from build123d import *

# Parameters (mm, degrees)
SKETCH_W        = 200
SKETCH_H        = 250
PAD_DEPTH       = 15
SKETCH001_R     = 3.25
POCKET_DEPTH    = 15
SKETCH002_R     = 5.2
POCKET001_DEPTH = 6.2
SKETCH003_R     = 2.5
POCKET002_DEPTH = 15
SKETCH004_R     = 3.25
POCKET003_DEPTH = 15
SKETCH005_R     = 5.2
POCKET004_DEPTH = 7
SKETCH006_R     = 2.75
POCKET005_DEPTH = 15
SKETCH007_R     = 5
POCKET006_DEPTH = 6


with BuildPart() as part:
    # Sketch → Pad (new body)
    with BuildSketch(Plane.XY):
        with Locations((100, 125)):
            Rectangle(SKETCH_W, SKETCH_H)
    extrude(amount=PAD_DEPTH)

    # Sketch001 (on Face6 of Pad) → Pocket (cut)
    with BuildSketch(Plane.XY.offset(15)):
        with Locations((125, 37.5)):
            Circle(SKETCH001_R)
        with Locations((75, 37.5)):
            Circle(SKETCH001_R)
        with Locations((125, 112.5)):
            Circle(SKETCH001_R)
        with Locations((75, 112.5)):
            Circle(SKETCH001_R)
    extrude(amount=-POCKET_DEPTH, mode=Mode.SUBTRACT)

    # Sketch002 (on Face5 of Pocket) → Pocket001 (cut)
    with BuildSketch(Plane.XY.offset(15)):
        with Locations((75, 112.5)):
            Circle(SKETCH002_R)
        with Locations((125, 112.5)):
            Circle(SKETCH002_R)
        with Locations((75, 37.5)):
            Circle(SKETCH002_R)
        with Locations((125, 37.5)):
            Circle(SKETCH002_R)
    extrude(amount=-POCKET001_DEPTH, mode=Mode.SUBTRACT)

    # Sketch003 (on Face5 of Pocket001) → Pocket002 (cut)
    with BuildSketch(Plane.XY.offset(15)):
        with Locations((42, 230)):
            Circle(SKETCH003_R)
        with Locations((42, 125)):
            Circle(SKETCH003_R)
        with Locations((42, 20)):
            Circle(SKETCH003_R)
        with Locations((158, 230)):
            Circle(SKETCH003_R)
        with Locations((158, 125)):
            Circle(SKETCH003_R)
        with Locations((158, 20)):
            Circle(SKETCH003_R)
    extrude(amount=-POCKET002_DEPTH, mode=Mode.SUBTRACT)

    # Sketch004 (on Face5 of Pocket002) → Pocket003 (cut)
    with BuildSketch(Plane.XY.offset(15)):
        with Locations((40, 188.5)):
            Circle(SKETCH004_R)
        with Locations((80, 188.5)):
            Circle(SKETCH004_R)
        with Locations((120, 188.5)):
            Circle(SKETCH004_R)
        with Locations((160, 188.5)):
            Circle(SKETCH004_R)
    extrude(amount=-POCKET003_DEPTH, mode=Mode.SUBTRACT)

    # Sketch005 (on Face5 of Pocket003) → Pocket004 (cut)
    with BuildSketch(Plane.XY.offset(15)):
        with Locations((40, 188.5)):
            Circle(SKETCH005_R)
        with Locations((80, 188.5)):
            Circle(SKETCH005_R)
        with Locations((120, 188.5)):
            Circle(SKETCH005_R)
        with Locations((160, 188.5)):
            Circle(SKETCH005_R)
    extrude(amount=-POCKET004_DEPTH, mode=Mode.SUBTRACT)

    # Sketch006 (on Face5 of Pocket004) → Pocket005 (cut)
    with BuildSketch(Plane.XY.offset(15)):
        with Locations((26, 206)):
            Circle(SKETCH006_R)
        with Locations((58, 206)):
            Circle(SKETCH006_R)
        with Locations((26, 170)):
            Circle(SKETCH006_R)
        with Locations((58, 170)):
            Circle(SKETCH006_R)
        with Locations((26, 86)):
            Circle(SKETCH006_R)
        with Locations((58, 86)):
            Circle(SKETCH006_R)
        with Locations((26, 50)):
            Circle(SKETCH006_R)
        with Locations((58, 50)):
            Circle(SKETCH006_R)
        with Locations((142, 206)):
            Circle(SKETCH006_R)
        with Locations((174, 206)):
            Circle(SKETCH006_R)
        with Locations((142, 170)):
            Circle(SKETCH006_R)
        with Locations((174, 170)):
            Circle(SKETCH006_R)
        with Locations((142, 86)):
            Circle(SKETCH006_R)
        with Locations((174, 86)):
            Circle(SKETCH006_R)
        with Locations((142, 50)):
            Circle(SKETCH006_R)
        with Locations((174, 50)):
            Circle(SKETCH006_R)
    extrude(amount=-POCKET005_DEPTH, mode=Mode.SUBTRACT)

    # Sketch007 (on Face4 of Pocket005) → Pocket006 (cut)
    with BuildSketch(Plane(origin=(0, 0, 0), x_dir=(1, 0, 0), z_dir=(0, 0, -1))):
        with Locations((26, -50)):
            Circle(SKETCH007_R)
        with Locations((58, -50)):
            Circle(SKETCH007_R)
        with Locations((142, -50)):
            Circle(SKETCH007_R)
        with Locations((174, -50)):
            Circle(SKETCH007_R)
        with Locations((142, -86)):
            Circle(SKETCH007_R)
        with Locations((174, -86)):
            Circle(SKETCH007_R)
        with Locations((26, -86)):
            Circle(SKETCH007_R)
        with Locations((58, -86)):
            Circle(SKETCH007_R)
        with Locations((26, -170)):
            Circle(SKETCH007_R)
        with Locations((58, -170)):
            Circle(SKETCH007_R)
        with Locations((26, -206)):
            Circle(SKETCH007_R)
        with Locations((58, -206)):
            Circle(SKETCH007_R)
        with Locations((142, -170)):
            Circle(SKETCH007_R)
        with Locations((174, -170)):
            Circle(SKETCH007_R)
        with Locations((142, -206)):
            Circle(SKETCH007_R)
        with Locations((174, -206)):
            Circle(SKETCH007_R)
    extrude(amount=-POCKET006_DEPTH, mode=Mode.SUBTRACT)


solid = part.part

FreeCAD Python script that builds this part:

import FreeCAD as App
import Part
import Sketcher

V = App.Vector


def add_polygon(sketch, points):
    """Adds a closed chain of lines whose ends are joined by coincident constraints."""
    first, n = sketch.GeometryCount, len(points)
    for a, b in zip(points, points[1:] + points[:1]):
        sketch.addGeometry(Part.LineSegment(App.Vector(*a, 0), App.Vector(*b, 0)), False)
    for i in range(n):
        sketch.addConstraint(Sketcher.Constraint("Coincident", first + i, 2, first + (i + 1) % n, 1))

doc = App.newDocument("Part")
body = doc.addObject("PartDesign::Body", "Body")

# Sketch on XY plane
sketch1 = body.newObject("Sketcher::SketchObject", "Sketch")
sketch1.AttachmentSupport = (doc.getObject("XY_Plane"), [""])
sketch1.MapMode = "FlatFace"
add_polygon(sketch1, [(0, 250), (0, 0), (200, 0), (200, 250)])  # lines 0-3
sketch1.addConstraint(Sketcher.Constraint("Vertical", 0))
sketch1.addConstraint(Sketcher.Constraint("Horizontal", 1))
sketch1.addConstraint(Sketcher.Constraint("Vertical", 2))
sketch1.addConstraint(Sketcher.Constraint("Horizontal", 3))
sketch1.addConstraint(Sketcher.Constraint("Coincident", 0, 2, -1, 1))
sketch1.addConstraint(Sketcher.Constraint("DistanceX", 1, 1, 1, 2, 200.0))
sketch1.addConstraint(Sketcher.Constraint("DistanceY", 0, 2, 0, 1, 250.0))
pad1 = body.newObject("PartDesign::Pad", "Pad")
pad1.Profile = sketch1
pad1.Length = 15

# Sketch on XY plane
sketch2 = body.newObject("Sketcher::SketchObject", "Sketch001")
sketch2.AttachmentSupport = (doc.getObject("XY_Plane"), [""])
sketch2.MapMode = "FlatFace"
sketch2.AttachmentOffset = App.Placement(V(0, 0, 15), App.Rotation())
sketch2.addGeometry(Part.Circle(V(125, 37.5, 0), V(0, 0, 1), 3.25), False)
sketch2.addGeometry(Part.Circle(V(75, 37.5, 0), V(0, 0, 1), 3.25), False)
sketch2.addGeometry(Part.Circle(V(125, 112.5, 0), V(0, 0, 1), 3.25), False)
sketch2.addGeometry(Part.Circle(V(75, 112.5, 0), V(0, 0, 1), 3.25), False)
sketch2.addConstraint(Sketcher.Constraint("Equal", 0, 1))
sketch2.addConstraint(Sketcher.Constraint("Equal", 1, 2))
sketch2.addConstraint(Sketcher.Constraint("Equal", 2, 3))
sketch2.addConstraint(Sketcher.Constraint("Horizontal", 0, 3, 1, 3))
sketch2.addConstraint(Sketcher.Constraint("Horizontal", 2, 3, 3, 3))
sketch2.addConstraint(Sketcher.Constraint("Vertical", 0, 3, 2, 3))
sketch2.addConstraint(Sketcher.Constraint("Vertical", 1, 3, 3, 3))
sketch2.addConstraint(Sketcher.Constraint("Diameter", 0, 6.5))
sketch2.addConstraint(Sketcher.Constraint("DistanceX", -1, 1, 0, 3, 125.0))
sketch2.addConstraint(Sketcher.Constraint("DistanceX", -1, 1, 1, 3, 75.0))
sketch2.addConstraint(Sketcher.Constraint("DistanceY", 0, 3, 2, 3, 75.0))
sketch2.addConstraint(Sketcher.Constraint("DistanceY", -1, 1, 0, 3, 37.5))
pocket1 = body.newObject("PartDesign::Pocket", "Pocket")
pocket1.Profile = sketch2
pocket1.Length = 15

# Sketch on XY plane
sketch3 = body.newObject("Sketcher::SketchObject", "Sketch002")
sketch3.AttachmentSupport = (doc.getObject("XY_Plane"), [""])
sketch3.MapMode = "FlatFace"
sketch3.AttachmentOffset = App.Placement(V(0, 0, 15), App.Rotation())
sketch3.addGeometry(Part.Circle(V(75, 112.5, 0), V(0, 0, 1), 5.2), False)
sketch3.addGeometry(Part.Circle(V(125, 112.5, 0), V(0, 0, 1), 5.2), False)
sketch3.addGeometry(Part.Circle(V(75, 37.5, 0), V(0, 0, 1), 5.2), False)
sketch3.addGeometry(Part.Circle(V(125, 37.5, 0), V(0, 0, 1), 5.2), False)
sketch3.addConstraint(Sketcher.Constraint("Equal", 0, 1))
sketch3.addConstraint(Sketcher.Constraint("Equal", 1, 2))
sketch3.addConstraint(Sketcher.Constraint("Equal", 2, 3))
sketch3.addConstraint(Sketcher.Constraint("Horizontal", 0, 3, 1, 3))
sketch3.addConstraint(Sketcher.Constraint("Horizontal", 2, 3, 3, 3))
sketch3.addConstraint(Sketcher.Constraint("Vertical", 0, 3, 2, 3))
sketch3.addConstraint(Sketcher.Constraint("Vertical", 1, 3, 3, 3))
sketch3.addConstraint(Sketcher.Constraint("Diameter", 0, 10.4))
sketch3.addConstraint(Sketcher.Constraint("DistanceX", -1, 1, 0, 3, 75.0))
sketch3.addConstraint(Sketcher.Constraint("DistanceX", -1, 1, 1, 3, 125.0))
sketch3.addConstraint(Sketcher.Constraint("DistanceY", 2, 3, 0, 3, 75.0))
sketch3.addConstraint(Sketcher.Constraint("DistanceY", -1, 1, 0, 3, 112.5))
pocket2 = body.newObject("PartDesign::Pocket", "Pocket001")
pocket2.Profile = sketch3
pocket2.Length = 6.2

# Sketch on XY plane
sketch4 = body.newObject("Sketcher::SketchObject", "Sketch003")
sketch4.AttachmentSupport = (doc.getObject("XY_Plane"), [""])
sketch4.MapMode = "FlatFace"
sketch4.AttachmentOffset = App.Placement(V(0, 0, 15), App.Rotation())
sketch4.addGeometry(Part.Circle(V(42, 230, 0), V(0, 0, 1), 2.5), False)
sketch4.addGeometry(Part.Circle(V(42, 125, 0), V(0, 0, 1), 2.5), False)
sketch4.addGeometry(Part.Circle(V(42, 20, 0), V(0, 0, 1), 2.5), False)
sketch4.addGeometry(Part.Circle(V(158, 230, 0), V(0, 0, 1), 2.5), False)
sketch4.addGeometry(Part.Circle(V(158, 125, 0), V(0, 0, 1), 2.5), False)
sketch4.addGeometry(Part.Circle(V(158, 20, 0), V(0, 0, 1), 2.5), False)
sketch4.addConstraint(Sketcher.Constraint("Equal", 0, 1))
sketch4.addConstraint(Sketcher.Constraint("Equal", 1, 2))
sketch4.addConstraint(Sketcher.Constraint("Equal", 2, 3))
sketch4.addConstraint(Sketcher.Constraint("Equal", 3, 4))
sketch4.addConstraint(Sketcher.Constraint("Equal", 4, 5))
sketch4.addConstraint(Sketcher.Constraint("Horizontal", 0, 3, 3, 3))
sketch4.addConstraint(Sketcher.Constraint("Horizontal", 1, 3, 4, 3))
sketch4.addConstraint(Sketcher.Constraint("Horizontal", 2, 3, 5, 3))
sketch4.addConstraint(Sketcher.Constraint("Vertical", 0, 3, 1, 3))
sketch4.addConstraint(Sketcher.Constraint("Vertical", 1, 3, 2, 3))
sketch4.addConstraint(Sketcher.Constraint("Vertical", 3, 3, 4, 3))
sketch4.addConstraint(Sketcher.Constraint("Vertical", 4, 3, 5, 3))
sketch4.addConstraint(Sketcher.Constraint("Diameter", 0, 5.0))
sketch4.addConstraint(Sketcher.Constraint("DistanceX", -1, 1, 0, 3, 42.0))
sketch4.addConstraint(Sketcher.Constraint("DistanceY", -1, 1, 0, 3, 230.0))
sketch4.addConstraint(Sketcher.Constraint("DistanceY", -1, 1, 1, 3, 125.0))
sketch4.addConstraint(Sketcher.Constraint("DistanceY", -1, 1, 2, 3, 20.0))
sketch4.addConstraint(Sketcher.Constraint("DistanceX", -1, 1, 3, 3, 158.0))
pocket3 = body.newObject("PartDesign::Pocket", "Pocket002")
pocket3.Profile = sketch4
pocket3.Length = 15

# Sketch on XY plane
sketch5 = body.newObject("Sketcher::SketchObject", "Sketch004")
sketch5.AttachmentSupport = (doc.getObject("XY_Plane"), [""])
sketch5.MapMode = "FlatFace"
sketch5.AttachmentOffset = App.Placement(V(0, 0, 15), App.Rotation())
sketch5.addGeometry(Part.Circle(V(40, 188.5, 0), V(0, 0, 1), 3.25), False)
sketch5.addGeometry(Part.Circle(V(80, 188.5, 0), V(0, 0, 1), 3.25), False)
sketch5.addGeometry(Part.Circle(V(120, 188.5, 0), V(0, 0, 1), 3.25), False)
sketch5.addGeometry(Part.Circle(V(160, 188.5, 0), V(0, 0, 1), 3.25), False)
sketch5.addConstraint(Sketcher.Constraint("Equal", 0, 1))
sketch5.addConstraint(Sketcher.Constraint("Equal", 1, 2))
sketch5.addConstraint(Sketcher.Constraint("Equal", 2, 3))
sketch5.addConstraint(Sketcher.Constraint("Horizontal", 0, 3, 1, 3))
sketch5.addConstraint(Sketcher.Constraint("Horizontal", 1, 3, 2, 3))
sketch5.addConstraint(Sketcher.Constraint("Horizontal", 2, 3, 3, 3))
sketch5.addConstraint(Sketcher.Constraint("Diameter", 0, 6.5))
sketch5.addConstraint(Sketcher.Constraint("DistanceX", -1, 1, 0, 3, 40.0))
sketch5.addConstraint(Sketcher.Constraint("DistanceX", -1, 1, 1, 3, 80.0))
sketch5.addConstraint(Sketcher.Constraint("DistanceX", -1, 1, 2, 3, 120.0))
sketch5.addConstraint(Sketcher.Constraint("DistanceX", -1, 1, 3, 3, 160.0))
sketch5.addConstraint(Sketcher.Constraint("DistanceY", -1, 1, 0, 3, 188.5))
pocket4 = body.newObject("PartDesign::Pocket", "Pocket003")
pocket4.Profile = sketch5
pocket4.Length = 15

# Sketch on XY plane
sketch6 = body.newObject("Sketcher::SketchObject", "Sketch005")
sketch6.AttachmentSupport = (doc.getObject("XY_Plane"), [""])
sketch6.MapMode = "FlatFace"
sketch6.AttachmentOffset = App.Placement(V(0, 0, 15), App.Rotation())
sketch6.addGeometry(Part.Circle(V(40, 188.5, 0), V(0, 0, 1), 5.2), False)
sketch6.addGeometry(Part.Circle(V(80, 188.5, 0), V(0, 0, 1), 5.2), False)
sketch6.addGeometry(Part.Circle(V(120, 188.5, 0), V(0, 0, 1), 5.2), False)
sketch6.addGeometry(Part.Circle(V(160, 188.5, 0), V(0, 0, 1), 5.2), False)
sketch6.addConstraint(Sketcher.Constraint("Equal", 0, 1))
sketch6.addConstraint(Sketcher.Constraint("Equal", 1, 2))
sketch6.addConstraint(Sketcher.Constraint("Equal", 2, 3))
sketch6.addConstraint(Sketcher.Constraint("Horizontal", 0, 3, 1, 3))
sketch6.addConstraint(Sketcher.Constraint("Horizontal", 1, 3, 2, 3))
sketch6.addConstraint(Sketcher.Constraint("Horizontal", 2, 3, 3, 3))
sketch6.addConstraint(Sketcher.Constraint("Diameter", 0, 10.4))
sketch6.addConstraint(Sketcher.Constraint("DistanceX", -1, 1, 0, 3, 40.0))
sketch6.addConstraint(Sketcher.Constraint("DistanceX", -1, 1, 1, 3, 80.0))
sketch6.addConstraint(Sketcher.Constraint("DistanceX", -1, 1, 2, 3, 120.0))
sketch6.addConstraint(Sketcher.Constraint("DistanceX", -1, 1, 3, 3, 160.0))
sketch6.addConstraint(Sketcher.Constraint("DistanceY", -1, 1, 0, 3, 188.5))
pocket5 = body.newObject("PartDesign::Pocket", "Pocket004")
pocket5.Profile = sketch6
pocket5.Length = 7

# Sketch on XY plane
sketch7 = body.newObject("Sketcher::SketchObject", "Sketch006")
sketch7.AttachmentSupport = (doc.getObject("XY_Plane"), [""])
sketch7.MapMode = "FlatFace"
sketch7.AttachmentOffset = App.Placement(V(0, 0, 15), App.Rotation())
sketch7.addGeometry(Part.Circle(V(26, 206, 0), V(0, 0, 1), 2.75), False)
sketch7.addGeometry(Part.Circle(V(58, 206, 0), V(0, 0, 1), 2.75), False)
sketch7.addGeometry(Part.Circle(V(26, 170, 0), V(0, 0, 1), 2.75), False)
sketch7.addGeometry(Part.Circle(V(58, 170, 0), V(0, 0, 1), 2.75), False)
sketch7.addGeometry(Part.Circle(V(26, 86, 0), V(0, 0, 1), 2.75), False)
sketch7.addGeometry(Part.Circle(V(58, 86, 0), V(0, 0, 1), 2.75), False)
sketch7.addGeometry(Part.Circle(V(26, 50, 0), V(0, 0, 1), 2.75), False)
sketch7.addGeometry(Part.Circle(V(58, 50, 0), V(0, 0, 1), 2.75), False)
sketch7.addGeometry(Part.Circle(V(142, 206, 0), V(0, 0, 1), 2.75), False)
sketch7.addGeometry(Part.Circle(V(174, 206, 0), V(0, 0, 1), 2.75), False)
sketch7.addGeometry(Part.Circle(V(142, 170, 0), V(0, 0, 1), 2.75), False)
sketch7.addGeometry(Part.Circle(V(174, 170, 0), V(0, 0, 1), 2.75), False)
sketch7.addGeometry(Part.Circle(V(142, 86, 0), V(0, 0, 1), 2.75), False)
sketch7.addGeometry(Part.Circle(V(174, 86, 0), V(0, 0, 1), 2.75), False)
sketch7.addGeometry(Part.Circle(V(142, 50, 0), V(0, 0, 1), 2.75), False)
sketch7.addGeometry(Part.Circle(V(174, 50, 0), V(0, 0, 1), 2.75), False)
sketch7.addConstraint(Sketcher.Constraint("Equal", 0, 1))
sketch7.addConstraint(Sketcher.Constraint("Equal", 1, 2))
sketch7.addConstraint(Sketcher.Constraint("Equal", 2, 3))
sketch7.addConstraint(Sketcher.Constraint("Equal", 3, 4))
sketch7.addConstraint(Sketcher.Constraint("Equal", 4, 5))
sketch7.addConstraint(Sketcher.Constraint("Equal", 5, 6))
sketch7.addConstraint(Sketcher.Constraint("Equal", 6, 7))
sketch7.addConstraint(Sketcher.Constraint("Equal", 7, 8))
sketch7.addConstraint(Sketcher.Constraint("Equal", 8, 9))
sketch7.addConstraint(Sketcher.Constraint("Equal", 9, 10))
sketch7.addConstraint(Sketcher.Constraint("Equal", 10, 11))
sketch7.addConstraint(Sketcher.Constraint("Equal", 11, 12))
sketch7.addConstraint(Sketcher.Constraint("Equal", 12, 13))
sketch7.addConstraint(Sketcher.Constraint("Equal", 13, 14))
sketch7.addConstraint(Sketcher.Constraint("Equal", 14, 15))
sketch7.addConstraint(Sketcher.Constraint("Horizontal", 0, 3, 1, 3))
sketch7.addConstraint(Sketcher.Constraint("Horizontal", 2, 3, 3, 3))
sketch7.addConstraint(Sketcher.Constraint("Horizontal", 4, 3, 5, 3))
sketch7.addConstraint(Sketcher.Constraint("Horizontal", 6, 3, 7, 3))
sketch7.addConstraint(Sketcher.Constraint("Horizontal", 1, 3, 8, 3))
sketch7.addConstraint(Sketcher.Constraint("Horizontal", 8, 3, 9, 3))
sketch7.addConstraint(Sketcher.Constraint("Horizontal", 3, 3, 10, 3))
sketch7.addConstraint(Sketcher.Constraint("Horizontal", 10, 3, 11, 3))
sketch7.addConstraint(Sketcher.Constraint("Horizontal", 5, 3, 12, 3))
sketch7.addConstraint(Sketcher.Constraint("Horizontal", 12, 3, 13, 3))
sketch7.addConstraint(Sketcher.Constraint("Horizontal", 7, 3, 14, 3))
sketch7.addConstraint(Sketcher.Constraint("Horizontal", 14, 3, 15, 3))
sketch7.addConstraint(Sketcher.Constraint("Vertical", 0, 3, 2, 3))
sketch7.addConstraint(Sketcher.Constraint("Vertical", 1, 3, 3, 3))
sketch7.addConstraint(Sketcher.Constraint("Vertical", 2, 3, 4, 3))
sketch7.addConstraint(Sketcher.Constraint("Vertical", 3, 3, 5, 3))
sketch7.addConstraint(Sketcher.Constraint("Vertical", 4, 3, 6, 3))
sketch7.addConstraint(Sketcher.Constraint("Vertical", 5, 3, 7, 3))
sketch7.addConstraint(Sketcher.Constraint("Vertical", 8, 3, 10, 3))
sketch7.addConstraint(Sketcher.Constraint("Vertical", 9, 3, 11, 3))
sketch7.addConstraint(Sketcher.Constraint("Vertical", 10, 3, 12, 3))
sketch7.addConstraint(Sketcher.Constraint("Vertical", 11, 3, 13, 3))
sketch7.addConstraint(Sketcher.Constraint("Vertical", 12, 3, 14, 3))
sketch7.addConstraint(Sketcher.Constraint("Vertical", 13, 3, 15, 3))
sketch7.addConstraint(Sketcher.Constraint("Diameter", 0, 5.5))
sketch7.addConstraint(Sketcher.Constraint("DistanceX", -1, 1, 0, 3, 26.0))
sketch7.addConstraint(Sketcher.Constraint("DistanceY", -1, 1, 0, 3, 206.0))
sketch7.addConstraint(Sketcher.Constraint("DistanceX", -1, 1, 1, 3, 58.0))
sketch7.addConstraint(Sketcher.Constraint("DistanceY", -1, 1, 2, 3, 170.0))
sketch7.addConstraint(Sketcher.Constraint("DistanceY", -1, 1, 4, 3, 86.0))
sketch7.addConstraint(Sketcher.Constraint("DistanceY", -1, 1, 6, 3, 50.0))
sketch7.addConstraint(Sketcher.Constraint("DistanceX", -1, 1, 8, 3, 142.0))
sketch7.addConstraint(Sketcher.Constraint("DistanceX", -1, 1, 9, 3, 174.0))
pocket6 = body.newObject("PartDesign::Pocket", "Pocket005")
pocket6.Profile = sketch7
pocket6.Length = 15

# Sketch on XY plane
sketch8 = body.newObject("Sketcher::SketchObject", "Sketch007")
sketch8.AttachmentSupport = (doc.getObject("XY_Plane"), [""])
sketch8.MapMode = "FlatFace"
sketch8.addGeometry(Part.Circle(V(26, 50, 0), V(0, 0, 1), 5), False)
sketch8.addGeometry(Part.Circle(V(58, 50, 0), V(0, 0, 1), 5), False)
sketch8.addGeometry(Part.Circle(V(142, 50, 0), V(0, 0, 1), 5), False)
sketch8.addGeometry(Part.Circle(V(174, 50, 0), V(0, 0, 1), 5), False)
sketch8.addGeometry(Part.Circle(V(142, 86, 0), V(0, 0, 1), 5), False)
sketch8.addGeometry(Part.Circle(V(174, 86, 0), V(0, 0, 1), 5), False)
sketch8.addGeometry(Part.Circle(V(26, 86, 0), V(0, 0, 1), 5), False)
sketch8.addGeometry(Part.Circle(V(58, 86, 0), V(0, 0, 1), 5), False)
sketch8.addGeometry(Part.Circle(V(26, 170, 0), V(0, 0, 1), 5), False)
sketch8.addGeometry(Part.Circle(V(58, 170, 0), V(0, 0, 1), 5), False)
sketch8.addGeometry(Part.Circle(V(26, 206, 0), V(0, 0, 1), 5), False)
sketch8.addGeometry(Part.Circle(V(58, 206, 0), V(0, 0, 1), 5), False)
sketch8.addGeometry(Part.Circle(V(142, 170, 0), V(0, 0, 1), 5), False)
sketch8.addGeometry(Part.Circle(V(174, 170, 0), V(0, 0, 1), 5), False)
sketch8.addGeometry(Part.Circle(V(142, 206, 0), V(0, 0, 1), 5), False)
sketch8.addGeometry(Part.Circle(V(174, 206, 0), V(0, 0, 1), 5), False)
sketch8.addConstraint(Sketcher.Constraint("Equal", 0, 1))
sketch8.addConstraint(Sketcher.Constraint("Equal", 1, 2))
sketch8.addConstraint(Sketcher.Constraint("Equal", 2, 3))
sketch8.addConstraint(Sketcher.Constraint("Equal", 3, 4))
sketch8.addConstraint(Sketcher.Constraint("Equal", 4, 5))
sketch8.addConstraint(Sketcher.Constraint("Equal", 5, 6))
sketch8.addConstraint(Sketcher.Constraint("Equal", 6, 7))
sketch8.addConstraint(Sketcher.Constraint("Equal", 7, 8))
sketch8.addConstraint(Sketcher.Constraint("Equal", 8, 9))
sketch8.addConstraint(Sketcher.Constraint("Equal", 9, 10))
sketch8.addConstraint(Sketcher.Constraint("Equal", 10, 11))
sketch8.addConstraint(Sketcher.Constraint("Equal", 11, 12))
sketch8.addConstraint(Sketcher.Constraint("Equal", 12, 13))
sketch8.addConstraint(Sketcher.Constraint("Equal", 13, 14))
sketch8.addConstraint(Sketcher.Constraint("Equal", 14, 15))
sketch8.addConstraint(Sketcher.Constraint("Horizontal", 0, 3, 1, 3))
sketch8.addConstraint(Sketcher.Constraint("Horizontal", 1, 3, 2, 3))
sketch8.addConstraint(Sketcher.Constraint("Horizontal", 2, 3, 3, 3))
sketch8.addConstraint(Sketcher.Constraint("Horizontal", 4, 3, 5, 3))
sketch8.addConstraint(Sketcher.Constraint("Horizontal", 5, 3, 6, 3))
sketch8.addConstraint(Sketcher.Constraint("Horizontal", 6, 3, 7, 3))
sketch8.addConstraint(Sketcher.Constraint("Horizontal", 8, 3, 9, 3))
sketch8.addConstraint(Sketcher.Constraint("Horizontal", 10, 3, 11, 3))
sketch8.addConstraint(Sketcher.Constraint("Horizontal", 9, 3, 12, 3))
sketch8.addConstraint(Sketcher.Constraint("Horizontal", 12, 3, 13, 3))
sketch8.addConstraint(Sketcher.Constraint("Horizontal", 11, 3, 14, 3))
sketch8.addConstraint(Sketcher.Constraint("Horizontal", 14, 3, 15, 3))
sketch8.addConstraint(Sketcher.Constraint("Vertical", 2, 3, 4, 3))
sketch8.addConstraint(Sketcher.Constraint("Vertical", 3, 3, 5, 3))
sketch8.addConstraint(Sketcher.Constraint("Vertical", 0, 3, 6, 3))
sketch8.addConstraint(Sketcher.Constraint("Vertical", 1, 3, 7, 3))
sketch8.addConstraint(Sketcher.Constraint("Vertical", 6, 3, 8, 3))
sketch8.addConstraint(Sketcher.Constraint("Vertical", 7, 3, 9, 3))
sketch8.addConstraint(Sketcher.Constraint("Vertical", 8, 3, 10, 3))
sketch8.addConstraint(Sketcher.Constraint("Vertical", 9, 3, 11, 3))
sketch8.addConstraint(Sketcher.Constraint("Vertical", 4, 3, 12, 3))
sketch8.addConstraint(Sketcher.Constraint("Vertical", 5, 3, 13, 3))
sketch8.addConstraint(Sketcher.Constraint("Vertical", 12, 3, 14, 3))
sketch8.addConstraint(Sketcher.Constraint("Vertical", 13, 3, 15, 3))
sketch8.addConstraint(Sketcher.Constraint("Diameter", 0, 10.0))
sketch8.addConstraint(Sketcher.Constraint("DistanceX", -1, 1, 0, 3, 26.0))
sketch8.addConstraint(Sketcher.Constraint("DistanceY", -1, 1, 0, 3, 50.0))
sketch8.addConstraint(Sketcher.Constraint("DistanceX", -1, 1, 1, 3, 58.0))
sketch8.addConstraint(Sketcher.Constraint("DistanceX", -1, 1, 2, 3, 142.0))
sketch8.addConstraint(Sketcher.Constraint("DistanceX", -1, 1, 3, 3, 174.0))
sketch8.addConstraint(Sketcher.Constraint("DistanceY", -1, 1, 4, 3, 86.0))
sketch8.addConstraint(Sketcher.Constraint("DistanceY", -1, 1, 8, 3, 170.0))
sketch8.addConstraint(Sketcher.Constraint("DistanceY", -1, 1, 10, 3, 206.0))
pocket7 = body.newObject("PartDesign::Pocket", "Pocket006")
pocket7.Profile = sketch8
pocket7.Length = 6
pocket7.Reversed = True

doc.recompute()
